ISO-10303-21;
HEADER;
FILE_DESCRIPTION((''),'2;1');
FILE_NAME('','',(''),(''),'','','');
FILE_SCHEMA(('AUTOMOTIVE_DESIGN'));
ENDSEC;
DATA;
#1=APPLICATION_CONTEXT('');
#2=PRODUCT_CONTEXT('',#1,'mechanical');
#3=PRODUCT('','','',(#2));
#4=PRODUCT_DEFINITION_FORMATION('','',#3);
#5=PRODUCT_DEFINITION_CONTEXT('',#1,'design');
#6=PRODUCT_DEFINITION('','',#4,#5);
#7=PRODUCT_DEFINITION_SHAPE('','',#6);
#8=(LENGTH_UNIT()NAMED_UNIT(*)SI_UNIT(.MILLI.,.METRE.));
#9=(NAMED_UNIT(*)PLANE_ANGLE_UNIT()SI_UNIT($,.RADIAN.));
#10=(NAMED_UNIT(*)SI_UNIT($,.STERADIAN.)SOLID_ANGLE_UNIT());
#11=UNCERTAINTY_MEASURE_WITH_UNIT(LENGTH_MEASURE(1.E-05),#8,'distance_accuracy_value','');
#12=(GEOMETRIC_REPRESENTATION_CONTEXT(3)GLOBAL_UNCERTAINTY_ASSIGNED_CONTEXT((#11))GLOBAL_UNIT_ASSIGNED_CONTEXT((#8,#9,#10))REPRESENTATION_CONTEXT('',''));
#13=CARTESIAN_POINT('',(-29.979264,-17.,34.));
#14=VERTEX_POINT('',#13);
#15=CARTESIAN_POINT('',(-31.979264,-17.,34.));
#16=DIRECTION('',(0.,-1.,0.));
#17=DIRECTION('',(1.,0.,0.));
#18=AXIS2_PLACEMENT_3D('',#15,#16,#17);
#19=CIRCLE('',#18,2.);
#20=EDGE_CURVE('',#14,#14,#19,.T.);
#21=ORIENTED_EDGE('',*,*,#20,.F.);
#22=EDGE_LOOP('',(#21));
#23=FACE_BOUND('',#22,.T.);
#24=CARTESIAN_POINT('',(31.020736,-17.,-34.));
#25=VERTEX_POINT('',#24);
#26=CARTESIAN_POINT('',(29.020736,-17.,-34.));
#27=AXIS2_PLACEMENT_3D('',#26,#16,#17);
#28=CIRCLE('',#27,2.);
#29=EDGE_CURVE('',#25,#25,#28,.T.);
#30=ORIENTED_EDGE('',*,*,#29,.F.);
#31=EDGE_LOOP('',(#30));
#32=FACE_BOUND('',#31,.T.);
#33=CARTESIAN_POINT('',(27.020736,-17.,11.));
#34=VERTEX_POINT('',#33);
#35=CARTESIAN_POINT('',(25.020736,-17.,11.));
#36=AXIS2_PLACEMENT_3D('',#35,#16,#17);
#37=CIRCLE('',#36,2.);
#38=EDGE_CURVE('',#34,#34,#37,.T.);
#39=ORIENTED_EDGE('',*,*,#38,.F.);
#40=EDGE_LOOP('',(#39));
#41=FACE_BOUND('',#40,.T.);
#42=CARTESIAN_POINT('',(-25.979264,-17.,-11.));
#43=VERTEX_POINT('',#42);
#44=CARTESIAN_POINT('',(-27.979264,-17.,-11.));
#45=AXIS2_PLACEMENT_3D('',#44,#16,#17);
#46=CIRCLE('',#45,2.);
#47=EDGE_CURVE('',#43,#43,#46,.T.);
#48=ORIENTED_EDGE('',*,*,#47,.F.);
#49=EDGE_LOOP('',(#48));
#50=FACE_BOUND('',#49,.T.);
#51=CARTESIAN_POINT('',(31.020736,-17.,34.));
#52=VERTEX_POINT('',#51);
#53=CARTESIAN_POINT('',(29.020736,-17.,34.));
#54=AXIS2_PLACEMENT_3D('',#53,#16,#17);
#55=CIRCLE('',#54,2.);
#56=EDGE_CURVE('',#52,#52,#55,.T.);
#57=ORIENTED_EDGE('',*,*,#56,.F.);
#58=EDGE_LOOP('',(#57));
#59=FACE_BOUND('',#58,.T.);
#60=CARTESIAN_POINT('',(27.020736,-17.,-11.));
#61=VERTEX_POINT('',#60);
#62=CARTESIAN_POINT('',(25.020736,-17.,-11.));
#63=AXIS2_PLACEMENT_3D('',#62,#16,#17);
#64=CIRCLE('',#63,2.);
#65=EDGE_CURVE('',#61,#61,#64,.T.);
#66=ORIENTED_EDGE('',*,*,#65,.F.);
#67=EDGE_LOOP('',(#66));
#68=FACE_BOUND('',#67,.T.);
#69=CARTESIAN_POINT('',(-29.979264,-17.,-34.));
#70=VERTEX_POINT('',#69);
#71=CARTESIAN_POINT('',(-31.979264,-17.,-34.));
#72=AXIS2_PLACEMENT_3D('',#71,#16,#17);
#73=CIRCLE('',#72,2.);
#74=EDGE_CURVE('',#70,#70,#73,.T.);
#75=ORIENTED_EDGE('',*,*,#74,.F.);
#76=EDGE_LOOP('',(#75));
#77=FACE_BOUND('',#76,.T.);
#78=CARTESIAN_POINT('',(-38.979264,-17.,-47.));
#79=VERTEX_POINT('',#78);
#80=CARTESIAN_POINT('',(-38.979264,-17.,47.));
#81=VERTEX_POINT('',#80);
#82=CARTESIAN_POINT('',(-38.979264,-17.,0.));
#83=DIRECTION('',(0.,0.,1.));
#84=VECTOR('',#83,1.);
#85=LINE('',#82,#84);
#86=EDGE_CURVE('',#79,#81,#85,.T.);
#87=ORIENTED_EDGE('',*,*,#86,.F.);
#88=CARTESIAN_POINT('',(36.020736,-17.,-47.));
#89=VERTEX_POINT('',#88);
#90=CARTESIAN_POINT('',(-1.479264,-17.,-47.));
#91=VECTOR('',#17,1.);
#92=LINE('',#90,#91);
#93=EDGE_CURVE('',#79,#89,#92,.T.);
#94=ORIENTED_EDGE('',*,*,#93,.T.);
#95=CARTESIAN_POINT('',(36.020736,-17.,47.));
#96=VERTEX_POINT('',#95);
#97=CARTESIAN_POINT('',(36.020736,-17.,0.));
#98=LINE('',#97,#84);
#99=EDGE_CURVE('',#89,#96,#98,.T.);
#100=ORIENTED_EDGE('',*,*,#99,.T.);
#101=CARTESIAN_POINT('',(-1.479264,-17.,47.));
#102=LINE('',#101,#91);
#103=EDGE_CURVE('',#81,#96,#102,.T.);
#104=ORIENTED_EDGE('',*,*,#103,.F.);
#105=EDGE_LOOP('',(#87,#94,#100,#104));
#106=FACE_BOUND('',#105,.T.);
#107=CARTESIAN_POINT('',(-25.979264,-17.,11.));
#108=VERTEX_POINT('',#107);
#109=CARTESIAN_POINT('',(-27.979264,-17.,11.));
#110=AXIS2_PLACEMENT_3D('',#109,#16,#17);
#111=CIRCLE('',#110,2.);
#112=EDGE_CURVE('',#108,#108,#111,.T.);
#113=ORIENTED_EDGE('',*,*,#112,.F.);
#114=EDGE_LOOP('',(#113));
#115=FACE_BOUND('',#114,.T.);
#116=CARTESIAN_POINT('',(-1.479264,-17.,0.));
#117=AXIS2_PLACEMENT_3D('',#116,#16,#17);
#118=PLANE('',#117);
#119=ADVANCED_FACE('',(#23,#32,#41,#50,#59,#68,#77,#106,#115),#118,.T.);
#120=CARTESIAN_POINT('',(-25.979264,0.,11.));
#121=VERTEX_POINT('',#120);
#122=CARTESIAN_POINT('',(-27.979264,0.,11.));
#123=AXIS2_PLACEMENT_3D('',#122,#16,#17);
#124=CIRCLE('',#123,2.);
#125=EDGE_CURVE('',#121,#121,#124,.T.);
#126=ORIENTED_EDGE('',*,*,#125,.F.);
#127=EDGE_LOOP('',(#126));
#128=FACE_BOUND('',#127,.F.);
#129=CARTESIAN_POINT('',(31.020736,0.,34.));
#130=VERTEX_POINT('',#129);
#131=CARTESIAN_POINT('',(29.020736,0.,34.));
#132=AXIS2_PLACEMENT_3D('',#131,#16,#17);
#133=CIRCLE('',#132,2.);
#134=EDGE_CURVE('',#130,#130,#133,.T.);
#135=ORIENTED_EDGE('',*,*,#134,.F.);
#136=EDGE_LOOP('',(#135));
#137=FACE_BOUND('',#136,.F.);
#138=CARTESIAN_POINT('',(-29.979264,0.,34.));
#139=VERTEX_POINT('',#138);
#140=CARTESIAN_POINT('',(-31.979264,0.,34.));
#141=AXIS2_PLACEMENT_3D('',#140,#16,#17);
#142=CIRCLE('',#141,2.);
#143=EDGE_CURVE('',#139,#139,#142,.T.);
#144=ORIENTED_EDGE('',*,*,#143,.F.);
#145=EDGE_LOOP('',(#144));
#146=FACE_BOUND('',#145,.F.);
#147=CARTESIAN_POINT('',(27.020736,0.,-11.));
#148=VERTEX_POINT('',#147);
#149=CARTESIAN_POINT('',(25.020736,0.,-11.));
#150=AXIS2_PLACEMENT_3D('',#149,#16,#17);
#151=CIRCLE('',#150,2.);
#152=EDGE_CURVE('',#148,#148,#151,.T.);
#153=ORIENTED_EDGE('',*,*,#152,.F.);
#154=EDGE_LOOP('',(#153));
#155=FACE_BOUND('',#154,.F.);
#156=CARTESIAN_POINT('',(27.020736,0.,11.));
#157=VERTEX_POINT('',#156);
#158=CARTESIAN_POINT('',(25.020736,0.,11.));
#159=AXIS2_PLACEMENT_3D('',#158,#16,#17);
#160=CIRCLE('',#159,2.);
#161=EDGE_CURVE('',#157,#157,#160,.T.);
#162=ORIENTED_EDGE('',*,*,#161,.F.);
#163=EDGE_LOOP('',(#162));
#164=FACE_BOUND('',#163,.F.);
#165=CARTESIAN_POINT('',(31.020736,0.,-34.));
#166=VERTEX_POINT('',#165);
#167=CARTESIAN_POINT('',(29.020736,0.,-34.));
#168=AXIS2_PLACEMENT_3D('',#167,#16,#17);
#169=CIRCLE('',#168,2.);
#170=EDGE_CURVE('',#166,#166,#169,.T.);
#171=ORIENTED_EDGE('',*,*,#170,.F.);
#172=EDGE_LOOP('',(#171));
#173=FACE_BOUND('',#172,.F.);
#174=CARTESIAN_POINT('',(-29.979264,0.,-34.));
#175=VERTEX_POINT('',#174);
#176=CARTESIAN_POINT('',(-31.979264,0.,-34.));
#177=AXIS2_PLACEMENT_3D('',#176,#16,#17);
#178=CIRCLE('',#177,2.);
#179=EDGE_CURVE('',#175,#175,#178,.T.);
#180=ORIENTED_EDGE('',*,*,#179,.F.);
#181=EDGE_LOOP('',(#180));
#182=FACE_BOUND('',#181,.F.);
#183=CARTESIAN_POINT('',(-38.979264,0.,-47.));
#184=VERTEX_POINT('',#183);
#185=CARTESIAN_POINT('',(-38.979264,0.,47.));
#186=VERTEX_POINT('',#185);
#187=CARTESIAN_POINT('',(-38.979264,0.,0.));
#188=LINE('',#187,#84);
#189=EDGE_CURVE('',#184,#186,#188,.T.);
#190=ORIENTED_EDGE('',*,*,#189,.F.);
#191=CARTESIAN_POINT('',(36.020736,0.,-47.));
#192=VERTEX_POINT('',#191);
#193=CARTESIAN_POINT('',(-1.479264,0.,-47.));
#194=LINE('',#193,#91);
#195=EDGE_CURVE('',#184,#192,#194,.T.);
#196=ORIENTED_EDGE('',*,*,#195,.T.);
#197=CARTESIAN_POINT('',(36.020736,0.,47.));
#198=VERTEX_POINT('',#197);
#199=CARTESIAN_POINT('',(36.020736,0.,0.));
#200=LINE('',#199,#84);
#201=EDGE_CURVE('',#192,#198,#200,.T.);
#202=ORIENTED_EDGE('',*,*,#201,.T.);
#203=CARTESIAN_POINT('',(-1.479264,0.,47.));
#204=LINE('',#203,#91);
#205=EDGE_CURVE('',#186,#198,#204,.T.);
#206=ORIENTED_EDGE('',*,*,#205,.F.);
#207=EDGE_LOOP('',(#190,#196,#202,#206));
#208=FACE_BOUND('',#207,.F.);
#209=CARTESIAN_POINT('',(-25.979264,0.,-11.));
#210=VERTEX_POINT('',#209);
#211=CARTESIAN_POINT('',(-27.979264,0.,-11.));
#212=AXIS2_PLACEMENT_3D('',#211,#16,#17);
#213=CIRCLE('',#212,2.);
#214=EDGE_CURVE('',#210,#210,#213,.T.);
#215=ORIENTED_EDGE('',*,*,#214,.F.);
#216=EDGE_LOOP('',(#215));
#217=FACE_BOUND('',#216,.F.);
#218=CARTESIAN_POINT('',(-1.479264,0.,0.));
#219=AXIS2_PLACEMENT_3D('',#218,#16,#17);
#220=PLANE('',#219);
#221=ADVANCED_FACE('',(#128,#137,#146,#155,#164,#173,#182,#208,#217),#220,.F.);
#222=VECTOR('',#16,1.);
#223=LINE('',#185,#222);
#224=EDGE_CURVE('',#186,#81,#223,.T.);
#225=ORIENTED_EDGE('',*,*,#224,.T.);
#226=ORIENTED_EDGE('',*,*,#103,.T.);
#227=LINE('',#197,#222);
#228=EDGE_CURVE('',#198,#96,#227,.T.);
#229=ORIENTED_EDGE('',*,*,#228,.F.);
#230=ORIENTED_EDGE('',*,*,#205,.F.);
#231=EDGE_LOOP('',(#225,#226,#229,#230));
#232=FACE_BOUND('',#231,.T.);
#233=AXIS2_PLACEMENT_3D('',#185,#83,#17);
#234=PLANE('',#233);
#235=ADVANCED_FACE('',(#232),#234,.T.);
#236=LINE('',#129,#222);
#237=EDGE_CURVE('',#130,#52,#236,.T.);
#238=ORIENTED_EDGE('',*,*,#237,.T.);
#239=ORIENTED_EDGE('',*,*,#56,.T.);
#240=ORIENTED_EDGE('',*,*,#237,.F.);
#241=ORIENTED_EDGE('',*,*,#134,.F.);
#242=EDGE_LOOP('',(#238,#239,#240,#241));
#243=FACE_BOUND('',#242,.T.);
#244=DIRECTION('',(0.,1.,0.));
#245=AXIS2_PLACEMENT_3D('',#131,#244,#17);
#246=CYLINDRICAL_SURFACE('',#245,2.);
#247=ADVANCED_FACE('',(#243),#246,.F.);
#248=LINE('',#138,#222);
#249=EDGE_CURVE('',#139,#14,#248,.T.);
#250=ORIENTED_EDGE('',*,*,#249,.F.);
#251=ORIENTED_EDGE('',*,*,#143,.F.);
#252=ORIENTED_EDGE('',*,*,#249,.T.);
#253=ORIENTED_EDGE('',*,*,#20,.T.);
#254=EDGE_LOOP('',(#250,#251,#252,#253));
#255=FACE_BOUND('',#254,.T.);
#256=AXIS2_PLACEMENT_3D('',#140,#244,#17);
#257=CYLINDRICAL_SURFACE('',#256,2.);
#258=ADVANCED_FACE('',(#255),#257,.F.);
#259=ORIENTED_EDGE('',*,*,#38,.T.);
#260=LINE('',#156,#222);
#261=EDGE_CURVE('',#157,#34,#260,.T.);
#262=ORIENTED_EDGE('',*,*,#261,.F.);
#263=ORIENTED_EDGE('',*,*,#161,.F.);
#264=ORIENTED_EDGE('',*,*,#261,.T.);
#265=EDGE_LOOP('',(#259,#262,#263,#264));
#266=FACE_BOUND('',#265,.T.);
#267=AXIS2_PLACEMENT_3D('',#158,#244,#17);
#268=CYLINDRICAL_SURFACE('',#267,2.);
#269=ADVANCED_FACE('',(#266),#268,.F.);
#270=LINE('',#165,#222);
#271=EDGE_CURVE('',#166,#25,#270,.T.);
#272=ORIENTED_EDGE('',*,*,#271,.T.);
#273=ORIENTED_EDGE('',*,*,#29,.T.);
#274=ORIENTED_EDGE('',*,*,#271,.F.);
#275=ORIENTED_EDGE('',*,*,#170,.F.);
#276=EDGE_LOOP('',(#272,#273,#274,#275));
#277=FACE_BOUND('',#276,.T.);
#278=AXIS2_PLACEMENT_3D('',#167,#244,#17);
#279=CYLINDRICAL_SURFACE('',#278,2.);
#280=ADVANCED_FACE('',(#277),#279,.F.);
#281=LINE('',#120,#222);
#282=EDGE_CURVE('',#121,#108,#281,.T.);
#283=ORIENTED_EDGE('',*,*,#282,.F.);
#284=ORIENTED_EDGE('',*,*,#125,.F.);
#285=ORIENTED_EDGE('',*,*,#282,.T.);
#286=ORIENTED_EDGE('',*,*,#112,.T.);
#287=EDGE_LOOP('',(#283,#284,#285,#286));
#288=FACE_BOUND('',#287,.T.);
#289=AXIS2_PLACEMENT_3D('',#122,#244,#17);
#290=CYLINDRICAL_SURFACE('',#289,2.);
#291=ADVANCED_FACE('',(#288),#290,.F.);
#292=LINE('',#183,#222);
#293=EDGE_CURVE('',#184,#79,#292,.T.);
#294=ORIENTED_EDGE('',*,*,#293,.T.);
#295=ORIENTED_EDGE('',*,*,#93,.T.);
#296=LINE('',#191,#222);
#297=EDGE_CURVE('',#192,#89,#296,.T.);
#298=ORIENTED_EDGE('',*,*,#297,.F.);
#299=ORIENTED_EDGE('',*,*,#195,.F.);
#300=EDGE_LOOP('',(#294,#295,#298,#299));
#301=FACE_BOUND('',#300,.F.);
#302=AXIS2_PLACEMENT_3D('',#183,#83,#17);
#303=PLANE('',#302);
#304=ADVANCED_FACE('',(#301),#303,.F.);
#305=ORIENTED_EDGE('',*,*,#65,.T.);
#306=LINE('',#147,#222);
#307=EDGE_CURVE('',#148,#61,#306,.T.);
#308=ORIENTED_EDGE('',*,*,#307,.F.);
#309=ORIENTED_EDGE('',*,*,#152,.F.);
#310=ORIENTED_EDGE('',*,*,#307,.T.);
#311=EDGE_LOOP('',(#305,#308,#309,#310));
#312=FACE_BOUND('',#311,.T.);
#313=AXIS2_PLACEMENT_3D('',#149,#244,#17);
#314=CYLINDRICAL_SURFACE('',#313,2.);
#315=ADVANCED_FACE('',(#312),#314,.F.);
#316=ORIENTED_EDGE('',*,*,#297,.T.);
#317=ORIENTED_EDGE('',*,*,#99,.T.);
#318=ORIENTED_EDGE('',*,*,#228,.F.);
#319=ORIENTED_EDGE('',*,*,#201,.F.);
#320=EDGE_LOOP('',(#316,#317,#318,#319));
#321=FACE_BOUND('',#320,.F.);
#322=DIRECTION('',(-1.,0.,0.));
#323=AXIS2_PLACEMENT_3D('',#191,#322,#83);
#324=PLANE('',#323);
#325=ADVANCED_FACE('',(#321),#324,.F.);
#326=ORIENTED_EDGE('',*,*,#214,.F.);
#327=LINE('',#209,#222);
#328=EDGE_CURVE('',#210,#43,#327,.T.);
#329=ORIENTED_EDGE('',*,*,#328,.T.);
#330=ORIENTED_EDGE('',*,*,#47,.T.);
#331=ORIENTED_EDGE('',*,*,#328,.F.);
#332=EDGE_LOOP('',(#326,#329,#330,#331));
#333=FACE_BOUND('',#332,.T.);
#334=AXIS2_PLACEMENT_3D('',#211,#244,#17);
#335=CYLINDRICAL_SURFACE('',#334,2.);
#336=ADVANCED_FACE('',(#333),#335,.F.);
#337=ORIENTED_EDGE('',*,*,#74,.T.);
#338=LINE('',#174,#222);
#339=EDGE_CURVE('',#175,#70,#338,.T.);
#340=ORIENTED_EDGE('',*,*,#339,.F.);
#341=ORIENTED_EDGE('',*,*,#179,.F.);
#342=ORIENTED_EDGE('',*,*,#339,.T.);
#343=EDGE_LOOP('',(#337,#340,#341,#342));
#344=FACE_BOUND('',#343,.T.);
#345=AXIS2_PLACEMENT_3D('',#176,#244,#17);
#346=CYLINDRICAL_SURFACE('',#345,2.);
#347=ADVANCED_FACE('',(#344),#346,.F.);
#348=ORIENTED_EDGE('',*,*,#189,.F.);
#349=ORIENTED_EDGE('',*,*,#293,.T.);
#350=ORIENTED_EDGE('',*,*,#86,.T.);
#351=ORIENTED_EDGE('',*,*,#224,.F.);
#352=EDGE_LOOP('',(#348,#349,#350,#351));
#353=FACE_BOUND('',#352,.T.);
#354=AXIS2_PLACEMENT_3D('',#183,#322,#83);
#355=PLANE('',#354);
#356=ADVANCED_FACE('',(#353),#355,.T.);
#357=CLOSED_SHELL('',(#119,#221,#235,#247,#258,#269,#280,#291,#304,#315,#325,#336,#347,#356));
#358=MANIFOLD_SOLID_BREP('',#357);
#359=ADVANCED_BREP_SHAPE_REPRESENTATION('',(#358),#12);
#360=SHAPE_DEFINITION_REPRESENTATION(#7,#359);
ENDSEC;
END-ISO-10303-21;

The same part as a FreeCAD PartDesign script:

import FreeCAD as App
import Part
import Sketcher

V = App.Vector
Q = App.Units.Quantity

doc = App.newDocument("Part")
body = doc.addObject("PartDesign::Body", "Body")

sketch1 = body.newObject("Sketcher::SketchObject", "Sketch")
sketch1.AttachmentSupport = (doc.getObject("XZ_Plane"), [""])
sketch1.MapMode = "FlatFace"
sketch1.addGeometry(Part.LineSegment(V(-38.979264, 47, 0), V(-38.979264, -47, 0)), False)
sketch1.addGeometry(Part.LineSegment(V(-38.979264, -47, 0), V(36.020736, -47, 0)), False)
sketch1.addGeometry(Part.LineSegment(V(36.020736, -47, 0), V(36.020736, 47, 0)), False)
sketch1.addGeometry(Part.LineSegment(V(36.020736, 47, 0), V(-38.979264, 47, 0)), False)
sketch1.addGeometry(Part.Circle(V(-31.979264, -34, 0), V(0, 0, 1), 2), False)
sketch1.addGeometry(Part.Circle(V(-27.979264, -11, 0), V(0, 0, 1), 2), False)
sketch1.addGeometry(Part.Circle(V(29.020736, -34, 0), V(0, 0, 1), 2), False)
sketch1.addGeometry(Part.Circle(V(25.020736, -11, 0), V(0, 0, 1), 2), False)
sketch1.addGeometry(Part.Circle(V(-27.979264, 11, 0), V(0, 0, 1), 2), False)
sketch1.addGeometry(Part.Circle(V(-31.979264, 34, 0), V(0, 0, 1), 2), False)
sketch1.addGeometry(Part.Circle(V(25.020736, 11, 0), V(0, 0, 1), 2), False)
sketch1.addGeometry(Part.Circle(V(29.020736, 34, 0), V(0, 0, 1), 2), False)
sketch1.addConstraint(Sketcher.Constraint("Coincident", 0, 2, 1, 1))
sketch1.addConstraint(Sketcher.Constraint("Coincident", 1, 2, 2, 1))
sketch1.addConstraint(Sketcher.Constraint("Coincident", 2, 2, 3, 1))
sketch1.addConstraint(Sketcher.Constraint("Coincident", 3, 2, 0, 1))
sketch1.addConstraint(Sketcher.Constraint("Vertical", 0))
sketch1.addConstraint(Sketcher.Constraint("Horizontal", 1))
sketch1.addConstraint(Sketcher.Constraint("Vertical", 2))
sketch1.addConstraint(Sketcher.Constraint("Horizontal", 3))
sketch1.addConstraint(Sketcher.Constraint("Equal", 4, 5))
sketch1.addConstraint(Sketcher.Constraint("Equal", 5, 6))
sketch1.addConstraint(Sketcher.Constraint("Equal", 6, 7))
sketch1.addConstraint(Sketcher.Constraint("Equal", 7, 8))
sketch1.addConstraint(Sketcher.Constraint("Equal", 8, 9))
sketch1.addConstraint(Sketcher.Constraint("Equal", 9, 10))
sketch1.addConstraint(Sketcher.Constraint("Equal", 10, 11))
sketch1.addConstraint(Sketcher.Constraint("Symmetric", 5, 3, 8, 3, -1))
sketch1.addConstraint(Sketcher.Constraint("Symmetric", 4, 3, 9, 3, -1))
sketch1.addConstraint(Sketcher.Constraint("Symmetric", 7, 3, 10, 3, -1))
sketch1.addConstraint(Sketcher.Constraint("Symmetric", 6, 3, 11, 3, -1))
sketch1.addConstraint(Sketcher.Constraint("Horizontal", 4, 3, 6, 3))
sketch1.addConstraint(Sketcher.Constraint("Horizontal", 5, 3, 7, 3))
sketch1.addConstraint(Sketcher.Constraint("Diameter", 4, Q("4 mm")))
sketch1.addConstraint(Sketcher.Constraint("DistanceX", 1, 1, 1, 2, Q("75 mm")))
sketch1.addConstraint(Sketcher.Constraint("DistanceY", 0, 2, 0, 1, Q("94 mm")))
sketch1.addConstraint(Sketcher.Constraint("DistanceY", 4, 3, -1, 1, Q("34 mm")))
sketch1.addConstraint(Sketcher.Constraint("DistanceY", 5, 3, -1, 1, Q("11 mm")))
sketch1.addConstraint(Sketcher.Constraint("DistanceY", 0, 2, -1, 1, Q("47 mm")))
sketch1.addConstraint(Sketcher.Constraint("DistanceX", 4, 3, 5, 3, Q("4 mm")))
sketch1.addConstraint(Sketcher.Constraint("DistanceX", 4, 3, 6, 3, Q("61 mm")))
sketch1.addConstraint(Sketcher.Constraint("DistanceX", 7, 3, 6, 3, Q("4 mm")))
sketch1.addConstraint(Sketcher.Constraint("DistanceX", 0, 2, 4, 3, Q("7 mm")))
sketch1.addConstraint(Sketcher.Constraint("DistanceX", 4, 3, -1, 1, Q("31.979264 mm")))
pad1 = body.newObject("PartDesign::Pad", "Pad")
pad1.Profile = sketch1
pad1.Length = 17

doc.recompute()
